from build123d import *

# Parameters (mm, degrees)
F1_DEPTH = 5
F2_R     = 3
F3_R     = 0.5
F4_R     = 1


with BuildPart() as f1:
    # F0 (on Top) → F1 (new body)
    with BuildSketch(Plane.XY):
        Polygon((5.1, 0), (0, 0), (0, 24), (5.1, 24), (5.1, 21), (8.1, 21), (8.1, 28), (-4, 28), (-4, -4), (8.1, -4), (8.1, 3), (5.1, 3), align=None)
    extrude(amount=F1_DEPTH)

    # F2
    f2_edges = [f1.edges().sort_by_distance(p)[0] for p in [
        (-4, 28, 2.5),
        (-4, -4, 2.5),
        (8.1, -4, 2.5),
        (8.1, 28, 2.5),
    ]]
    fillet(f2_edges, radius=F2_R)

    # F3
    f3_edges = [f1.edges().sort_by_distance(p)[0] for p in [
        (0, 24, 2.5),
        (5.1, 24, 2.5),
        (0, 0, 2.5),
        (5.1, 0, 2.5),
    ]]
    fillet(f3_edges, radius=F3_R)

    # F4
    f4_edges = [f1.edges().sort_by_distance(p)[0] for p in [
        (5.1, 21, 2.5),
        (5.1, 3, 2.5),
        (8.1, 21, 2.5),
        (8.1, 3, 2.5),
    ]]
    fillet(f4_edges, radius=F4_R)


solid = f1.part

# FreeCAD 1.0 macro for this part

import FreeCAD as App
import Part
import Sketcher

V = App.Vector
Q = App.Units.Quantity


def edges_at(feature, points):
    """Names of the edges that pass closest to the given points."""
    edges = feature.Shape.Edges
    near = lambda p: min(range(len(edges)), key=lambda i: edges[i].distToShape(Part.Vertex(*p))[0])
    return sorted({f"Edge{near(p) + 1}" for p in points})

doc = App.newDocument("Part")
body = doc.addObject("PartDesign::Body", "Body")

# Sketch on XY plane
sketch1 = doc.addObject("Sketcher::SketchObject", "Sketch")
body.addObject(sketch1)
sketch1.AttachmentSupport = (doc.XY_Plane, [""])
sketch1.MapMode = "FlatFace"
sketch1.addGeometry([
    Part.LineSegment(V(5.1, 0, 0), V(0, 0, 0)),  # 0
    Part.LineSegment(V(0, 0, 0), V(0, 24, 0)),  # 1
    Part.LineSegment(V(0, 24, 0), V(5.1, 24, 0)),  # 2
    Part.LineSegment(V(5.1, 24, 0), V(5.1, 21, 0)),  # 3
    Part.LineSegment(V(5.1, 21, 0), V(8.1, 21, 0)),  # 4
    Part.LineSegment(V(8.1, 21, 0), V(8.1, 28, 0)),  # 5
    Part.LineSegment(V(8.1, 28, 0), V(-4, 28, 0)),  # 6
    Part.LineSegment(V(-4, 28, 0), V(-4, -4, 0)),  # 7
    Part.LineSegment(V(-4, -4, 0), V(8.1, -4, 0)),  # 8
    Part.LineSegment(V(8.1, -4, 0), V(8.1, 3, 0)),  # 9
    Part.LineSegment(V(8.1, 3, 0), V(5.1, 3, 0)),  # 10
    Part.LineSegment(V(5.1, 3, 0), V(5.1, 0, 0)),  # 11
], False)
sketch1.addConstraint([
    Sketcher.Constraint("Coincident", 0, 2, 1, 1),
    Sketcher.Constraint("Coincident", 1, 2, 2, 1),
    Sketcher.Constraint("Coincident", 2, 2, 3, 1),
    Sketcher.Constraint("Coincident", 3, 2, 4, 1),
    Sketcher.Constraint("Coincident", 4, 2, 5, 1),
    Sketcher.Constraint("Coincident", 5, 2, 6, 1),
    Sketcher.Constraint("Coincident", 6, 2, 7, 1),
    Sketcher.Constraint("Coincident", 7, 2, 8, 1),
    Sketcher.Constraint("Coincident", 8, 2, 9, 1),
    Sketcher.Constraint("Coincident", 9, 2, 10, 1),
    Sketcher.Constraint("Coincident", 10, 2, 11, 1),
    Sketcher.Constraint("Coincident", 11, 2, 0, 1),
    Sketcher.Constraint("Horizontal", 0),
    Sketcher.Constraint("Vertical", 1),
    Sketcher.Constraint("Horizontal", 2),
    Sketcher.Constraint("Vertical", 3),
    Sketcher.Constraint("Horizontal", 4),
    Sketcher.Constraint("Vertical", 5),
    Sketcher.Constraint("Horizontal", 6),
    Sketcher.Constraint("Vertical", 7),
    Sketcher.Constraint("Horizontal", 8),
    Sketcher.Constraint("Vertical", 9),
    Sketcher.Constraint("Horizontal", 10),
    Sketcher.Constraint("Vertical", 11),
    Sketcher.Constraint("Coincident", 0, 2, -1, 1),
    Sketcher.Constraint("Vertical", 5, 2, 8, 2),
    Sketcher.Constraint("Vertical", 3, 2, 10, 2),
    Sketcher.Constraint("Equal", 10, 3),
    Sketcher.Constraint("Equal", 5, 9),
    Sketcher.Constraint("Equal", 3, 11),
    Sketcher.Constraint("DistanceX", 4, 1, 4, 2, Q("3 mm")),
    Sketcher.Constraint("DistanceY", 1, 1, 1, 2, Q("24 mm")),
    Sketcher.Constraint("DistanceY", 5, 1, 5, 2, Q("7 mm")),
    Sketcher.Constraint("DistanceX", 0, 2, 0, 1, Q("5.1 mm")),
    Sketcher.Constraint("DistanceX", 6, 2, 6, 1, Q("12.1 mm")),
])
pad1 = doc.addObject("PartDesign::Pad", "Pad")
body.addObject(pad1)
pad1.Profile = sketch1
pad1.Length = 5
doc.recompute()

fillet = doc.addObject("PartDesign::Fillet", "Fillet")
body.addObject(fillet)
fillet.Base = (pad1, edges_at(pad1, [
    (-4, 28, 2.5),
    (-4, -4, 2.5),
    (8.1, -4, 2.5),
    (8.1, 28, 2.5),
]))
fillet.Radius = 3
doc.recompute()

fillet2 = doc.addObject("PartDesign::Fillet", "Fillet001")
body.addObject(fillet2)
fillet2.Base = (fillet, edges_at(fillet, [
    (0, 24, 2.5),
    (5.1, 24, 2.5),
    (0, 0, 2.5),
    (5.1, 0, 2.5),
]))
fillet2.Radius = 0.5
doc.recompute()

fillet3 = doc.addObject("PartDesign::Fillet", "Fillet002")
body.addObject(fillet3)
fillet3.Base = (fillet2, edges_at(fillet2, [
    (5.1, 21, 2.5),
    (5.1, 3, 2.5),
    (8.1, 21, 2.5),
    (8.1, 3, 2.5),
]))
fillet3.Radius = 1

doc.recompute()
